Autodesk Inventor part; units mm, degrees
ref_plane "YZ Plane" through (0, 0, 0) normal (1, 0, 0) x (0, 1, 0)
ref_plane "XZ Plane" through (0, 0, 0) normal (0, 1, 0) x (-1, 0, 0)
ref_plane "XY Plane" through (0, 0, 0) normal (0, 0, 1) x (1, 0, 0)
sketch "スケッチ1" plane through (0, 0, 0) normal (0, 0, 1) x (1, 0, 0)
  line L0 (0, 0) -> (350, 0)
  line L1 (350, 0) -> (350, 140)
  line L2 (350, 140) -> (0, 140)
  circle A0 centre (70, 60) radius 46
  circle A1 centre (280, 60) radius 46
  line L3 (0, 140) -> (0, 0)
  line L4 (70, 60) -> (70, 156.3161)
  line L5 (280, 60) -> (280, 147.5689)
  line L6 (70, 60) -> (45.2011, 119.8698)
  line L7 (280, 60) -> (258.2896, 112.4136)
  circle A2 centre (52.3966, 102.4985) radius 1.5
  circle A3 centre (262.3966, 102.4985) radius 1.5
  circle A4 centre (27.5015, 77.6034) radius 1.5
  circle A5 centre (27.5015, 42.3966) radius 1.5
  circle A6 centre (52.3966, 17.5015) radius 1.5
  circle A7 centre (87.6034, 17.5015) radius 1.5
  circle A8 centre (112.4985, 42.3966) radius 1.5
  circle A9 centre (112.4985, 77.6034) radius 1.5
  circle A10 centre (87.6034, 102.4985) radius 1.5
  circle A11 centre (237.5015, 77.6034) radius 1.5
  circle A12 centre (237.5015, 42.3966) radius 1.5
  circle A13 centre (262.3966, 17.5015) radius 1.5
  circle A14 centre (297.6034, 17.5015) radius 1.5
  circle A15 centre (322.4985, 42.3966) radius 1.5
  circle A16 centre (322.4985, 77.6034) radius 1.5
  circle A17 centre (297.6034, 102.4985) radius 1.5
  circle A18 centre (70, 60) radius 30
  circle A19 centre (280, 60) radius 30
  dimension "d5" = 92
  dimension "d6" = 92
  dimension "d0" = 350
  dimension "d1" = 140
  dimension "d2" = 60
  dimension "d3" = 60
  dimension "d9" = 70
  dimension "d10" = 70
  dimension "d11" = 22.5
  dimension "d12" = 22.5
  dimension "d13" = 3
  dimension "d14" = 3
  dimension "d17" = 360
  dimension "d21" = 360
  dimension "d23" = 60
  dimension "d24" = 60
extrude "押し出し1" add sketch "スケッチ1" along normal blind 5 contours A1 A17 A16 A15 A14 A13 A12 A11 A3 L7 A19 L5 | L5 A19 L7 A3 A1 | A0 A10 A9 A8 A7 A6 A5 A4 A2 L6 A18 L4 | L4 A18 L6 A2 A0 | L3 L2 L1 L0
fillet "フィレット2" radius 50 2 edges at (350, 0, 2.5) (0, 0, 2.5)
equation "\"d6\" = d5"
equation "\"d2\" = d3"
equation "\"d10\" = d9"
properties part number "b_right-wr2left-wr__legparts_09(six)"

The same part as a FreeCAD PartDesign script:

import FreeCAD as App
import Part
import Sketcher


def edges_at(feature, points):
    """Names of the edges that pass closest to the given points."""
    edges = feature.Shape.Edges
    near = lambda p: min(range(len(edges)), key=lambda i: edges[i].distToShape(Part.Vertex(*p))[0])
    return sorted({f"Edge{near(p) + 1}" for p in points})

doc = App.newDocument("Part")
body = doc.addObject("PartDesign::Body", "Body")

sketch1 = doc.addObject("Sketcher::SketchObject", "Sketch")
body.addObject(sketch1)
sketch1.AttachmentSupport = (doc.XY_Plane, [""])
sketch1.MapMode = "FlatFace"
sketch1.addGeometry([
    Part.LineSegment(App.Vector(0, 140, 0), App.Vector(0, 0, 0)),
    Part.LineSegment(App.Vector(0, 0, 0), App.Vector(350, 0, 0)),
    Part.LineSegment(App.Vector(350, 0, 0), App.Vector(350, 140, 0)),
    Part.LineSegment(App.Vector(350, 140, 0), App.Vector(280, 140, 0)),
    Part.LineSegment(App.Vector(280, 140, 0), App.Vector(70, 140, 0)),
    Part.LineSegment(App.Vector(70, 140, 0), App.Vector(0, 140, 0)),
    Part.Circle(App.Vector(297.6034, 102.4985, 0), App.Vector(0, 0, 1), 1.5),
    Part.Circle(App.Vector(322.4985, 77.6034, 0), App.Vector(0, 0, 1), 1.5),
    Part.Circle(App.Vector(322.4985, 42.3966, 0), App.Vector(0, 0, 1), 1.5),
    Part.Circle(App.Vector(297.6034, 17.5015, 0), App.Vector(0, 0, 1), 1.5),
    Part.Circle(App.Vector(262.3966, 17.5015, 0), App.Vector(0, 0, 1), 1.5),
    Part.Circle(App.Vector(237.5015, 42.3966, 0), App.Vector(0, 0, 1), 1.5),
    Part.Circle(App.Vector(237.5015, 77.6034, 0), App.Vector(0, 0, 1), 1.5),
    Part.Circle(App.Vector(262.3966, 102.4985, 0), App.Vector(0, 0, 1), 1.5),
    Part.Circle(App.Vector(280, 60, 0), App.Vector(0, 0, 1), 30),
    Part.Circle(App.Vector(52.3966, 102.4985, 0), App.Vector(0, 0, 1), 1.5),
    Part.Circle(App.Vector(27.5015, 77.6034, 0), App.Vector(0, 0, 1), 1.5),
    Part.Circle(App.Vector(27.5015, 42.3966, 0), App.Vector(0, 0, 1), 1.5),
    Part.Circle(App.Vector(52.3966, 17.5015, 0), App.Vector(0, 0, 1), 1.5),
    Part.Circle(App.Vector(87.6034, 17.5015, 0), App.Vector(0, 0, 1), 1.5),
    Part.Circle(App.Vector(112.4985, 42.3966, 0), App.Vector(0, 0, 1), 1.5),
    Part.Circle(App.Vector(112.4985, 77.6034, 0), App.Vector(0, 0, 1), 1.5),
    Part.Circle(App.Vector(87.6034, 102.4985, 0), App.Vector(0, 0, 1), 1.5),
    Part.Circle(App.Vector(70, 60, 0), App.Vector(0, 0, 1), 30),
], False)
sketch1.addConstraint([
    Sketcher.Constraint("Coincident", 0, 2, 1, 1),
    Sketcher.Constraint("Coincident", 1, 2, 2, 1),
    Sketcher.Constraint("Coincident", 2, 2, 3, 1),
    Sketcher.Constraint("Coincident", 3, 2, 4, 1),
    Sketcher.Constraint("Coincident", 4, 2, 5, 1),
    Sketcher.Constraint("Coincident", 5, 2, 0, 1),
    Sketcher.Constraint("Vertical", 0),
    Sketcher.Constraint("Horizontal", 1),
    Sketcher.Constraint("Vertical", 2),
    Sketcher.Constraint("Horizontal", 3),
    Sketcher.Constraint("Horizontal", 4),
    Sketcher.Constraint("Horizontal", 5),
    Sketcher.Constraint("Coincident", 0, 2, -1, 1),
    Sketcher.Constraint("Equal", 6, 7),
    Sketcher.Constraint("Equal", 7, 8),
    Sketcher.Constraint("Equal", 8, 9),
    Sketcher.Constraint("Equal", 9, 10),
    Sketcher.Constraint("Equal", 10, 11),
    Sketcher.Constraint("Equal", 11, 12),
    Sketcher.Constraint("Equal", 12, 13),
    Sketcher.Constraint("Equal", 13, 15),
    Sketcher.Constraint("Equal", 15, 16),
    Sketcher.Constraint("Equal", 16, 17),
    Sketcher.Constraint("Equal", 17, 18),
    Sketcher.Constraint("Equal", 18, 19),
    Sketcher.Constraint("Equal", 19, 20),
    Sketcher.Constraint("Equal", 20, 21),
    Sketcher.Constraint("Equal", 21, 22),
    Sketcher.Constraint("Equal", 14, 23),
    Sketcher.Constraint("Horizontal", 9, 3, 10, 3),
    Sketcher.Constraint("Horizontal", 8, 3, 11, 3),
    Sketcher.Constraint("Horizontal", 7, 3, 12, 3),
    Sketcher.Constraint("Horizontal", 6, 3, 13, 3),
    Sketcher.Constraint("Horizontal", 13, 3, 15, 3),
    Sketcher.Constraint("Horizontal", 12, 3, 16, 3),
    Sketcher.Constraint("Horizontal", 11, 3, 17, 3),
    Sketcher.Constraint("Horizontal", 10, 3, 18, 3),
    Sketcher.Constraint("Horizontal", 18, 3, 19, 3),
    Sketcher.Constraint("Horizontal", 17, 3, 20, 3),
    Sketcher.Constraint("Horizontal", 16, 3, 21, 3),
    Sketcher.Constraint("Horizontal", 15, 3, 22, 3),
    Sketcher.Constraint("Horizontal", 14, 3, 23, 3),
    Sketcher.Constraint("Vertical", 7, 3, 8, 3),
    Sketcher.Constraint("Vertical", 6, 3, 9, 3),
    Sketcher.Constraint("Vertical", 11, 3, 12, 3),
    Sketcher.Constraint("Vertical", 10, 3, 13, 3),
    Sketcher.Constraint("Vertical", 16, 3, 17, 3),
    Sketcher.Constraint("Vertical", 15, 3, 18, 3),
    Sketcher.Constraint("Vertical", 20, 3, 21, 3),
    Sketcher.Constraint("Vertical", 19, 3, 22, 3),
    Sketcher.Constraint("Vertical", 14, 3, 3, 2),
    Sketcher.Constraint("Vertical", 23, 3, 4, 2),
    Sketcher.Constraint("Equal", 3, 5),
    Sketcher.Constraint("Diameter", 6, 3.0),
    Sketcher.Constraint("Diameter", 14, 60.0),
    Sketcher.Constraint("DistanceX", 1, 1, 1, 2, 350.0),
    Sketcher.Constraint("DistanceX", 3, 2, 3, 1, 70.0),
    Sketcher.Constraint("DistanceY", 0, 2, 0, 1, 140.0),
    Sketcher.Constraint("DistanceY", -1, 1, 14, 3, 60.0),
    Sketcher.Constraint("DistanceX", 15, 3, 13, 3, 210.0),
    Sketcher.Constraint("DistanceX", 16, 3, 12, 3, 210.0),
    Sketcher.Constraint("DistanceX", 6, 3, 7, 3, 24.895),
    Sketcher.Constraint("DistanceY", 7, 3, 6, 3, 24.895),
    Sketcher.Constraint("DistanceY", 8, 3, 6, 3, 60.102),
    Sketcher.Constraint("DistanceY", 9, 3, 8, 3, 24.895),
    Sketcher.Constraint("DistanceX", 10, 3, 8, 3, 60.102),
    Sketcher.Constraint("DistanceX", 11, 3, 10, 3, 24.895),
    Sketcher.Constraint("DistanceX", 17, 3, 19, 3, 60.102),
    Sketcher.Constraint("DistanceX", 19, 3, 20, 3, 24.895),
    Sketcher.Constraint("DistanceX", -1, 1, 6, 3, 297.6034),
    Sketcher.Constraint("DistanceY", -1, 1, 6, 3, 102.4985),
])
pad1 = doc.addObject("PartDesign::Pad", "Pad")
body.addObject(pad1)
pad1.Profile = sketch1
pad1.Length = 5
doc.recompute()

fillet = doc.addObject("PartDesign::Fillet", "Fillet")
body.addObject(fillet)
fillet.Base = (pad1, edges_at(pad1, [(350, 0, 2.5), (0, 0, 2.5)]))
fillet.Radius = 50

doc.recompute()
